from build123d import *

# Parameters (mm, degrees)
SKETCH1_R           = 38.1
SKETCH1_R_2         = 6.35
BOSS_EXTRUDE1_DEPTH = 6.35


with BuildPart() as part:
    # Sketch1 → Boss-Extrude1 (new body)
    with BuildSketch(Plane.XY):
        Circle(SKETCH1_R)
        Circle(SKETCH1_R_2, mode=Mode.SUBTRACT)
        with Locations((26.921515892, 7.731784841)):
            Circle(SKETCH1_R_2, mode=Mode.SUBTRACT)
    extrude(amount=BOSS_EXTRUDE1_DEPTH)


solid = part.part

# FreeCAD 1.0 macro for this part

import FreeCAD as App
import Part
import Sketcher

V = App.Vector
Q = App.Units.Quantity

doc = App.newDocument("Part")
body = doc.addObject("PartDesign::Body", "Body")

sketch1 = doc.addObject("Sketcher::SketchObject", "Sketch")
body.addObject(sketch1)
sketch1.AttachmentSupport = (doc.XY_Plane, [""])
sketch1.MapMode = "FlatFace"
sketch1.addGeometry([
    Part.Circle(V(0, 0, 0), V(0, 0, 1), 38),
    Part.Circle(V(0, 0, 0), V(0, 0, 1), 6),
    Part.Circle(V(27, 8, 0), V(0, 0, 1), 6),
], False)
sketch1.addConstraint([
    Sketcher.Constraint("Coincident", 0, 3, -1, 1),
    Sketcher.Constraint("Coincident", 1, 3, -1, 1),
    Sketcher.Constraint("Equal", 1, 2),
    Sketcher.Constraint("Diameter", 0, Q("3 in")),
    Sketcher.Constraint("Diameter", 1, Q("0.5 in")),
    Sketcher.Constraint("DistanceX", -1, 1, 2, 3, 26.921516),
    Sketcher.Constraint("DistanceY", -1, 1, 2, 3, 7.731785),
])
pad1 = doc.addObject("PartDesign::Pad", "Pad")
body.addObject(pad1)
pad1.Profile = sketch1
pad1.Length = Q("0.25 in")

doc.recompute()
